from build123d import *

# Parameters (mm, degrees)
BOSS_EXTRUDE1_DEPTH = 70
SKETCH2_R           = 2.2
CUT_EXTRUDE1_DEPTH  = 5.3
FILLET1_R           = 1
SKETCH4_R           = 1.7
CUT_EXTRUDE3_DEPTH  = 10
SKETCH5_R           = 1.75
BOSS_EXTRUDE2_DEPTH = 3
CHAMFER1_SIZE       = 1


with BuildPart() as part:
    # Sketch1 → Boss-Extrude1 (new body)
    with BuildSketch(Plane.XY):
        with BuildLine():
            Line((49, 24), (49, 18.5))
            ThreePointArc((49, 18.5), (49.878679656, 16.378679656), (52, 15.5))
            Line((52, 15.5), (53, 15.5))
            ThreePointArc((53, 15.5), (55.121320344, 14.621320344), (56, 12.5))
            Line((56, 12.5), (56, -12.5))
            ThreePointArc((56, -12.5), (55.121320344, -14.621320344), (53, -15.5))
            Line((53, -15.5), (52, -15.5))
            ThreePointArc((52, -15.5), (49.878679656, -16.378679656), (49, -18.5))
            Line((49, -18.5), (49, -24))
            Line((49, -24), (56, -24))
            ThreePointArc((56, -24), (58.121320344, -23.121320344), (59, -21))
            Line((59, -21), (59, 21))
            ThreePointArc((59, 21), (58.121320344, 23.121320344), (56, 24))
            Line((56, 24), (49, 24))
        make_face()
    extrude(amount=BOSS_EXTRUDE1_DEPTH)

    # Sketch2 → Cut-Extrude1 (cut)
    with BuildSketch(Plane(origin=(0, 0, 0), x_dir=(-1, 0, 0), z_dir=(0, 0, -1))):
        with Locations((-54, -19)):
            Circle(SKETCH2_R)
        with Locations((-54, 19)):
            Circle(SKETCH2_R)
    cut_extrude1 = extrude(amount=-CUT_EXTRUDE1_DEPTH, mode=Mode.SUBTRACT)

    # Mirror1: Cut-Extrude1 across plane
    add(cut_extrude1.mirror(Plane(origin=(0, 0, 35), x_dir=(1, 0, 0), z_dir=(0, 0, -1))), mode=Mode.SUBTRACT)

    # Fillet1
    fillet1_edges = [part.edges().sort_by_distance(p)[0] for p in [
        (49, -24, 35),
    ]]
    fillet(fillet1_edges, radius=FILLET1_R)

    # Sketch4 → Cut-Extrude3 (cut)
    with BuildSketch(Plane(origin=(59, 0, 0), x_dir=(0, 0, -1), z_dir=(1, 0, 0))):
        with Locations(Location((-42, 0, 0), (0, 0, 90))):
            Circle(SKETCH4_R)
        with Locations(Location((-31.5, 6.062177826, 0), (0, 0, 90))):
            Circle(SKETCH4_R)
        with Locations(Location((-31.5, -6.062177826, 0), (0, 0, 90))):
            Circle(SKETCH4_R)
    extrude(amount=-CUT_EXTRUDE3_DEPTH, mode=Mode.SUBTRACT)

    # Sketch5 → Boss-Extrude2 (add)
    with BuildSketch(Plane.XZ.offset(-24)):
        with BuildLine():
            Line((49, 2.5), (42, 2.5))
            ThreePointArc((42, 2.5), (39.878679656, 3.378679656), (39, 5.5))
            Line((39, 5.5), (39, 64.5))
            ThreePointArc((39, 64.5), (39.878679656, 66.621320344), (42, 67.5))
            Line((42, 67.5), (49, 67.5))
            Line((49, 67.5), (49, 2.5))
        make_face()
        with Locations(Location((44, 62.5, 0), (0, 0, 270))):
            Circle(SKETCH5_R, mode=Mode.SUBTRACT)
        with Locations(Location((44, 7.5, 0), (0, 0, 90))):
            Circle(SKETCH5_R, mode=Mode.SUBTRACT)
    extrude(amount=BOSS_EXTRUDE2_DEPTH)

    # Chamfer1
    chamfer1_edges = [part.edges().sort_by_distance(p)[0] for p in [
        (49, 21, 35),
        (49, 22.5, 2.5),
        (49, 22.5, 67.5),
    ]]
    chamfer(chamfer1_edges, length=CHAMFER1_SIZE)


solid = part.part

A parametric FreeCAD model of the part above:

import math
import FreeCAD as App
import Part
import Sketcher
from FreeCAD import Vector
Q = App.Units.Quantity


def edges_at(feature, points):
    """Names of the edges that pass closest to the given points."""
    edges = feature.Shape.Edges
    near = lambda p: min(range(len(edges)), key=lambda i: edges[i].distToShape(Part.Vertex(*p))[0])
    return sorted({f"Edge{near(p) + 1}" for p in points})

doc = App.newDocument("Part")
body = doc.addObject("PartDesign::Body", "Body")

# Sketch on XY plane
sketch1 = doc.addObject("Sketcher::SketchObject", "Sketch")
body.addObject(sketch1)
sketch1.AttachmentSupport = (doc.XY_Plane, [""])
sketch1.MapMode = "FlatFace"
sketch1.addGeometry([
    Part.LineSegment(Vector(49, 24, 0), Vector(49, 18.5, 0)),  # 0
    Part.ArcOfCircle(Part.Circle(Vector(52, 18.5, 0), Vector(0, 0, 1), 3), math.radians(180), math.radians(270)),  # 1
    Part.LineSegment(Vector(52, 15.5, 0), Vector(53, 15.5, 0)),  # 2
    Part.ArcOfCircle(Part.Circle(Vector(53, 12.5, 0), Vector(0, 0, 1), 3), math.radians(0), math.radians(90)),  # 3
    Part.LineSegment(Vector(56, 12.5, 0), Vector(56, -12.5, 0)),  # 4
    Part.ArcOfCircle(Part.Circle(Vector(53, -12.5, 0), Vector(0, 0, 1), 3), math.radians(-90), math.radians(0)),  # 5
    Part.LineSegment(Vector(53, -15.5, 0), Vector(52, -15.5, 0)),  # 6
    Part.ArcOfCircle(Part.Circle(Vector(52, -18.5, 0), Vector(0, 0, 1), 3), math.radians(90), math.radians(180)),  # 7
    Part.LineSegment(Vector(49, -18.5, 0), Vector(49, -24, 0)),  # 8
    Part.LineSegment(Vector(49, -24, 0), Vector(56, -24, 0)),  # 9
    Part.ArcOfCircle(Part.Circle(Vector(56, -21, 0), Vector(0, 0, 1), 3), math.radians(-90), math.radians(0)),  # 10
    Part.LineSegment(Vector(59, -21, 0), Vector(59, 21, 0)),  # 11
    Part.ArcOfCircle(Part.Circle(Vector(56, 21, 0), Vector(0, 0, 1), 3), math.radians(0), math.radians(90)),  # 12
    Part.LineSegment(Vector(56, 24, 0), Vector(49, 24, 0)),  # 13
], False)
sketch1.addConstraint([
    Sketcher.Constraint("Tangent", 0, 2, 1, 1),
    Sketcher.Constraint("Tangent", 1, 2, 2, 1),
    Sketcher.Constraint("Tangent", 2, 2, 3, 2),
    Sketcher.Constraint("Tangent", 3, 1, 4, 1),
    Sketcher.Constraint("Tangent", 4, 2, 5, 2),
    Sketcher.Constraint("Tangent", 5, 1, 6, 1),
    Sketcher.Constraint("Tangent", 6, 2, 7, 1),
    Sketcher.Constraint("Tangent", 7, 2, 8, 1),
    Sketcher.Constraint("Coincident", 8, 2, 9, 1),
    Sketcher.Constraint("Tangent", 9, 2, 10, 1),
    Sketcher.Constraint("Tangent", 10, 2, 11, 1),
    Sketcher.Constraint("Tangent", 11, 2, 12, 1),
    Sketcher.Constraint("Tangent", 12, 2, 13, 1),
    Sketcher.Constraint("Coincident", 13, 2, 0, 1),
    Sketcher.Constraint("Vertical", 0),
    Sketcher.Constraint("Horizontal", 2),
    Sketcher.Constraint("Vertical", 4),
    Sketcher.Constraint("Horizontal", 6),
    Sketcher.Constraint("Vertical", 8),
    Sketcher.Constraint("Horizontal", 9),
    Sketcher.Constraint("Vertical", 11),
    Sketcher.Constraint("Horizontal", 13),
    Sketcher.Constraint("Equal", 1, 3),
    Sketcher.Constraint("Equal", 3, 5),
    Sketcher.Constraint("Equal", 5, 7),
    Sketcher.Constraint("Equal", 7, 10),
    Sketcher.Constraint("Equal", 10, 12),
    Sketcher.Constraint("Symmetric", 1, 3, 7, 3, -1),
    Sketcher.Constraint("Vertical", 12, 3, 3, 1),
    Sketcher.Constraint("Equal", 0, 8),
    Sketcher.Constraint("Radius", 1, Q("3 mm")),
    Sketcher.Constraint("DistanceX", 2, 1, 2, 2, Q("1 mm")),
    Sketcher.Constraint("DistanceY", 4, 2, 4, 1, Q("25 mm")),
    Sketcher.Constraint("DistanceY", 11, 1, 11, 2, Q("42 mm")),
    Sketcher.Constraint("DistanceX", -1, 1, 1, 3, Q("52 mm")),
])
pad1 = doc.addObject("PartDesign::Pad", "Pad")
body.addObject(pad1)
pad1.Profile = sketch1
pad1.Length = 70

# Sketch on XY plane
sketch2 = doc.addObject("Sketcher::SketchObject", "Sketch001")
body.addObject(sketch2)
sketch2.AttachmentSupport = (doc.XY_Plane, [""])
sketch2.MapMode = "FlatFace"
sketch2.addGeometry([
    Part.Circle(Vector(54, -19, 0), Vector(0, 0, 1), 2.2),
    Part.Circle(Vector(54, 19, 0), Vector(0, 0, 1), 2.2),
], False)
sketch2.addConstraint([
    Sketcher.Constraint("Equal", 0, 1),
    Sketcher.Constraint("Symmetric", 0, 3, 1, 3, -1),
    Sketcher.Constraint("Diameter", 0, Q("4.4 mm")),
    Sketcher.Constraint("DistanceX", -1, 1, 0, 3, Q("54 mm")),
    Sketcher.Constraint("DistanceY", 0, 3, -1, 1, Q("19 mm")),
])
pocket1 = doc.addObject("PartDesign::Pocket", "Pocket")
body.addObject(pocket1)
pocket1.Profile = sketch2
pocket1.Length = 5.3
pocket1.Reversed = True
doc.recompute()

datumplane = doc.addObject("PartDesign::Plane", "DatumPlane")
body.addObject(datumplane)
datumplane.AttachmentSupport = (doc.XY_Plane, [""])
datumplane.MapMode = "FlatFace"
datumplane.AttachmentOffset = App.Placement(Vector(0, 0, 35), App.Rotation())
mirrored = doc.addObject("PartDesign::Mirrored", "Mirrored")
body.addObject(mirrored)
mirrored.Originals = [pocket1]
mirrored.MirrorPlane = (datumplane, [""])
body.Tip = mirrored
doc.recompute()

fillet = doc.addObject("PartDesign::Fillet", "Fillet")
body.addObject(fillet)
fillet.Base = (mirrored, edges_at(mirrored, [(49, -24, 35)]))
fillet.Radius = 1

# Sketch on YZ plane
sketch3 = doc.addObject("Sketcher::SketchObject", "Sketch002")
body.addObject(sketch3)
sketch3.AttachmentSupport = (doc.YZ_Plane, [""])
sketch3.MapMode = "FlatFace"
sketch3.AttachmentOffset = App.Placement(Vector(0, 0, 59), App.Rotation())
sketch3.addGeometry([
    Part.Circle(Vector(0, 42, 0), Vector(0, 0, 1), 1.7),
    Part.Circle(Vector(6.1, 31.5, 0), Vector(0, 0, 1), 1.7),
    Part.Circle(Vector(-6.1, 31.5, 0), Vector(0, 0, 1), 1.7),
], False)
sketch3.addConstraint([
    Sketcher.Constraint("Equal", 0, 1),
    Sketcher.Constraint("Equal", 1, 2),
    Sketcher.Constraint("Symmetric", 1, 3, 2, 3, -2),
    Sketcher.Constraint("PointOnObject", 0, 3, -2),
    Sketcher.Constraint("Diameter", 0, Q("3.4 mm")),
    Sketcher.Constraint("DistanceY", -1, 1, 0, 3, Q("42 mm")),
    Sketcher.Constraint("DistanceY", -1, 1, 1, 3, Q("31.5 mm")),
    Sketcher.Constraint("DistanceX", -1, 1, 1, 3, Q("6.062178 mm")),
])
pocket2 = doc.addObject("PartDesign::Pocket", "Pocket001")
body.addObject(pocket2)
pocket2.Profile = sketch3
pocket2.Length = 10

# Sketch on XZ plane
sketch4 = doc.addObject("Sketcher::SketchObject", "Sketch003")
body.addObject(sketch4)
sketch4.AttachmentSupport = (doc.XZ_Plane, [""])
sketch4.MapMode = "FlatFace"
sketch4.AttachmentOffset = App.Placement(Vector(0, 0, -24), App.Rotation())
sketch4.addGeometry([
    Part.LineSegment(Vector(42, 2.5, 0), Vector(49, 2.5, 0)),  # 0
    Part.LineSegment(Vector(49, 2.5, 0), Vector(49, 67.5, 0)),  # 1
    Part.LineSegment(Vector(49, 67.5, 0), Vector(42, 67.5, 0)),  # 2
    Part.ArcOfCircle(Part.Circle(Vector(42, 64.5, 0), Vector(0, 0, 1), 3), math.radians(90), math.radians(180)),  # 3
    Part.LineSegment(Vector(39, 64.5, 0), Vector(39, 5.5, 0)),  # 4
    Part.ArcOfCircle(Part.Circle(Vector(42, 5.5, 0), Vector(0, 0, 1), 3), math.radians(180), math.radians(270)),  # 5
    Part.Circle(Vector(44, 7.5, 0), Vector(0, 0, 1), 1.8),  # 6
    Part.Circle(Vector(44, 62.5, 0), Vector(0, 0, 1), 1.8),  # 7
], False)
sketch4.addConstraint([
    Sketcher.Constraint("Coincident", 0, 2, 1, 1),
    Sketcher.Constraint("Coincident", 1, 2, 2, 1),
    Sketcher.Constraint("Tangent", 2, 2, 3, 1),
    Sketcher.Constraint("Tangent", 3, 2, 4, 1),
    Sketcher.Constraint("Tangent", 4, 2, 5, 1),
    Sketcher.Constraint("Tangent", 5, 2, 0, 1),
    Sketcher.Constraint("Horizontal", 0),
    Sketcher.Constraint("Vertical", 1),
    Sketcher.Constraint("Horizontal", 2),
    Sketcher.Constraint("Vertical", 4),
    Sketcher.Constraint("Equal", 3, 5),
    Sketcher.Constraint("Equal", 6, 7),
    Sketcher.Constraint("Vertical", 6, 3, 7, 3),
    Sketcher.Constraint("Radius", 3, Q("3 mm")),
    Sketcher.Constraint("Diameter", 6, Q("3.5 mm")),
    Sketcher.Constraint("DistanceX", 0, 1, 0, 2, Q("7 mm")),
    Sketcher.Constraint("DistanceY", 1, 1, 1, 2, Q("65 mm")),
    Sketcher.Constraint("DistanceX", -1, 1, 3, 3, Q("42 mm")),
    Sketcher.Constraint("DistanceX", -1, 1, 6, 3, Q("44 mm")),
    Sketcher.Constraint("DistanceY", 5, 3, 6, 3, Q("2 mm")),
    Sketcher.Constraint("DistanceY", 7, 3, 3, 3, Q("2 mm")),
    Sketcher.Constraint("DistanceY", -1, 1, 3, 3, Q("64.5 mm")),
])
pad2 = doc.addObject("PartDesign::Pad", "Pad001")
body.addObject(pad2)
pad2.Profile = sketch4
pad2.Length = 3
doc.recompute()

chamfer = doc.addObject("PartDesign::Chamfer", "Chamfer")
body.addObject(chamfer)
chamfer.Base = (pad2, edges_at(pad2, [(49, 21, 35), (49, 22.5, 2.5), (49, 22.5, 67.5)]))
chamfer.Size = 1

doc.recompute()
